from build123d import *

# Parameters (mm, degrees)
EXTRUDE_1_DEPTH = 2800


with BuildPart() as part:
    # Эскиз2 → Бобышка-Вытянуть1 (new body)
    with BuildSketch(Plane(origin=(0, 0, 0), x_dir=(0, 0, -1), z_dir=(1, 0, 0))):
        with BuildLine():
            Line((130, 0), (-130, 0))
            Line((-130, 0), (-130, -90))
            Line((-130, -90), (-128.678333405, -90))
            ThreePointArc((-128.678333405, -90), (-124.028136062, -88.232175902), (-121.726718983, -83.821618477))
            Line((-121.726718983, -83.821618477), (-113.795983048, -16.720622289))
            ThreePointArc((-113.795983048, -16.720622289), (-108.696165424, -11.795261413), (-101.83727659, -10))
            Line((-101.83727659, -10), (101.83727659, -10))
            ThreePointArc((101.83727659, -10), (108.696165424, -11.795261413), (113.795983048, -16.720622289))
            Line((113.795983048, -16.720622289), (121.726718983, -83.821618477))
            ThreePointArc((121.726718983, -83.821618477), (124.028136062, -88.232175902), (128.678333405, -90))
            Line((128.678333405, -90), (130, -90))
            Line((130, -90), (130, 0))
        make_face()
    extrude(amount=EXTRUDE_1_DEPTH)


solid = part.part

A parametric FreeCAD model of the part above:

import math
import FreeCAD as App
import Part
import Sketcher
from FreeCAD import Vector

doc = App.newDocument("Part")
params = doc.addObject("Spreadsheet::Sheet", "Params")
for row, (alias, value) in enumerate([
    ("sketch1_radius", "7 mm"),
    ("sketch1_radius2", "14 mm"),
    ("sketch1_width", "90 mm"),
    ("sketch1_height", "260 mm"),
    ("pad1_length", "2800 mm"),
], start=1):
    params.set(f"A{row}", alias)
    params.set(f"B{row}", "=" + value)
    params.setAlias(f"B{row}", alias)

body = doc.addObject("PartDesign::Body", "Body")

# Sketch on YZ plane
sketch1 = body.newObject("Sketcher::SketchObject", "Sketch")
sketch1.AttachmentSupport = (doc.getObject("YZ_Plane"), [""])
sketch1.MapMode = "FlatFace"
sketch1.addGeometry(Part.LineSegment(Vector(0, -130, 0), Vector(0, 130, 0)), False)
sketch1.addGeometry(Part.LineSegment(Vector(0, 130, 0), Vector(-90, 130, 0)), False)
sketch1.addGeometry(Part.LineSegment(Vector(-90, 130, 0), Vector(-90, 128.678333, 0)), False)
sketch1.addGeometry(Part.ArcOfCircle(Part.Circle(Vector(-83, 128.678333, 0), Vector(0, 0, 1), 7), math.radians(180), math.radians(263.259423)), False)
sketch1.addGeometry(Part.LineSegment(Vector(-83.821618, 121.726719, 0), Vector(-16.720622, 113.795983, 0)), False)
sketch1.addGeometry(Part.ArcOfCircle(Part.Circle(Vector(-24, 101.837277, 0), Vector(0, 0, 1), 14), math.radians(0), math.radians(58.67073)), False)
sketch1.addGeometry(Part.LineSegment(Vector(-10, 101.837277, 0), Vector(-10, -101.837277, 0)), False)
sketch1.addGeometry(Part.ArcOfCircle(Part.Circle(Vector(-24, -101.837277, 0), Vector(0, 0, 1), 14), math.radians(-58.67073), math.radians(0)), False)
sketch1.addGeometry(Part.LineSegment(Vector(-16.720622, -113.795983, 0), Vector(-83.821618, -121.726719, 0)), False)
sketch1.addGeometry(Part.ArcOfCircle(Part.Circle(Vector(-83, -128.678333, 0), Vector(0, 0, 1), 7), math.radians(96.740577), math.radians(180)), False)
sketch1.addGeometry(Part.LineSegment(Vector(-90, -128.678333, 0), Vector(-90, -130, 0)), False)
sketch1.addGeometry(Part.LineSegment(Vector(-90, -130, 0), Vector(0, -130, 0)), False)
sketch1.addConstraint(Sketcher.Constraint("Coincident", 0, 2, 1, 1))
sketch1.addConstraint(Sketcher.Constraint("Coincident", 1, 2, 2, 1))
sketch1.addConstraint(Sketcher.Constraint("Tangent", 2, 2, 3, 1))
sketch1.addConstraint(Sketcher.Constraint("Tangent", 3, 2, 4, 1))
sketch1.addConstraint(Sketcher.Constraint("Coincident", 4, 2, 5, 2))
sketch1.addConstraint(Sketcher.Constraint("Tangent", 5, 1, 6, 1))
sketch1.addConstraint(Sketcher.Constraint("Tangent", 6, 2, 7, 2))
sketch1.addConstraint(Sketcher.Constraint("Coincident", 7, 1, 8, 1))
sketch1.addConstraint(Sketcher.Constraint("Tangent", 8, 2, 9, 1))
sketch1.addConstraint(Sketcher.Constraint("Tangent", 9, 2, 10, 1))
sketch1.addConstraint(Sketcher.Constraint("Coincident", 10, 2, 11, 1))
sketch1.addConstraint(Sketcher.Constraint("Coincident", 11, 2, 0, 1))
sketch1.addConstraint(Sketcher.Constraint("Vertical", 0))
sketch1.addConstraint(Sketcher.Constraint("Horizontal", 1))
sketch1.addConstraint(Sketcher.Constraint("Vertical", 2))
sketch1.addConstraint(Sketcher.Constraint("Vertical", 6))
sketch1.addConstraint(Sketcher.Constraint("Vertical", 10))
sketch1.addConstraint(Sketcher.Constraint("Horizontal", 11))
sketch1.addConstraint(Sketcher.Constraint("Equal", 5, 7))
sketch1.addConstraint(Sketcher.Constraint("Equal", 3, 9))
sketch1.addConstraint(Sketcher.Constraint("Symmetric", 0, 2, 11, 2, -1, 1))
sketch1.addConstraint(Sketcher.Constraint("Symmetric", 3, 3, 9, 3, -1))
sketch1.addConstraint(Sketcher.Constraint("Symmetric", 4, 2, 7, 1, -1))
sketch1.addConstraint(Sketcher.Constraint("Radius", 3, 7.0))
sketch1.addConstraint(Sketcher.Constraint("Radius", 5, 14.0))
sketch1.addConstraint(Sketcher.Constraint("DistanceX", 1, 2, 1, 1, 90.0))
sketch1.addConstraint(Sketcher.Constraint("DistanceY", 0, 1, 0, 2, 260.0))
sketch1.addConstraint(Sketcher.Constraint("DistanceX", 5, 3, -1, 1, 24.0))
sketch1.addConstraint(Sketcher.Constraint("Distance", 4, 67.568042))
sketch1.addConstraint(Sketcher.Constraint("DistanceY", 2, 2, 2, 1, 1.321667))
sketch1.addConstraint(Sketcher.Constraint("DistanceY", 6, 2, 6, 1, 203.674553))
sketch1.setExpression("Constraints[23]", "Params.sketch1_radius")
sketch1.setExpression("Constraints[24]", "Params.sketch1_radius2")
sketch1.setExpression("Constraints[25]", "Params.sketch1_width")
sketch1.setExpression("Constraints[26]", "Params.sketch1_height")
pad1 = body.newObject("PartDesign::Pad", "Pad")
pad1.Profile = sketch1
pad1.setExpression("Length", "Params.pad1_length")

doc.recompute()
